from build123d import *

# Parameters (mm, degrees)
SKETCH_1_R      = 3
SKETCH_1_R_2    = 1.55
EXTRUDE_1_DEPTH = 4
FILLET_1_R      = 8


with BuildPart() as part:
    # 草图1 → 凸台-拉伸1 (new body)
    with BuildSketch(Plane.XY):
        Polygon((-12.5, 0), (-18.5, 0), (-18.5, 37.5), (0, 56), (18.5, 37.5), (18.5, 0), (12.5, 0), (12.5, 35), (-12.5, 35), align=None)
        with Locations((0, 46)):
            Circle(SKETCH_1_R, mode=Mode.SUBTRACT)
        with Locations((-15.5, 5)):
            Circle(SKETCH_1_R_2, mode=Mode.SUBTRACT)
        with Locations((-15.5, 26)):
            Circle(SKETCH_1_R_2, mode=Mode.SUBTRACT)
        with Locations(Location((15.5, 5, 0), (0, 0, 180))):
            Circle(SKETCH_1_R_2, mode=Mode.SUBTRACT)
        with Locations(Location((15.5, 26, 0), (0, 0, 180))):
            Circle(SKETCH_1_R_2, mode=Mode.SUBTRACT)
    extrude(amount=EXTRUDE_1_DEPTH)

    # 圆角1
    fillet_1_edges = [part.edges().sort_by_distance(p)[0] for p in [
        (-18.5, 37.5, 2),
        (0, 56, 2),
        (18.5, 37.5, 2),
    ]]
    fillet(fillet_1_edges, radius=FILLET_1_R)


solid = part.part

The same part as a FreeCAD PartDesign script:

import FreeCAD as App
import Part
import Sketcher
Q = App.Units.Quantity


def edges_at(feature, points):
    """Names of the edges that pass closest to the given points."""
    edges = feature.Shape.Edges
    near = lambda p: min(range(len(edges)), key=lambda i: edges[i].distToShape(Part.Vertex(*p))[0])
    return sorted({f"Edge{near(p) + 1}" for p in points})


def add_polygon(sketch, points):
    """Adds a closed chain of lines whose ends are joined by coincident constraints."""
    first, n = sketch.GeometryCount, len(points)
    for a, b in zip(points, points[1:] + points[:1]):
        sketch.addGeometry(Part.LineSegment(App.Vector(*a, 0), App.Vector(*b, 0)), False)
    for i in range(n):
        sketch.addConstraint(Sketcher.Constraint("Coincident", first + i, 2, first + (i + 1) % n, 1))

doc = App.newDocument("Part")
body = doc.addObject("PartDesign::Body", "Body")

# Sketch on XY plane
sketch1 = doc.addObject("Sketcher::SketchObject", "Sketch")
body.addObject(sketch1)
sketch1.AttachmentSupport = (doc.XY_Plane, [""])
sketch1.MapMode = "FlatFace"
add_polygon(sketch1, [(-18.5, 0), (-12.5, 0), (-12.5, 35), (12.5, 35), (12.5, 0), (18.5, 0), (18.5, 37.5), (0, 56), (-18.5, 37.5)])  # lines 0-8
sketch1.addGeometry(Part.Circle(App.Vector(15.5, 5, 0), App.Vector(0, 0, 1), 1.55), False)  # 9
sketch1.addGeometry(Part.Circle(App.Vector(15.5, 26, 0), App.Vector(0, 0, 1), 1.55), False)  # 10
sketch1.addGeometry(Part.Circle(App.Vector(-15.5, 5, 0), App.Vector(0, 0, 1), 1.55), False)  # 11
sketch1.addGeometry(Part.Circle(App.Vector(-15.5, 26, 0), App.Vector(0, 0, 1), 1.55), False)  # 12
sketch1.addGeometry(Part.Circle(App.Vector(0, 46, 0), App.Vector(0, 0, 1), 3), False)  # 13
sketch1.addConstraint([
    Sketcher.Constraint("Horizontal", 0),
    Sketcher.Constraint("Vertical", 1),
    Sketcher.Constraint("Horizontal", 2),
    Sketcher.Constraint("Vertical", 3),
    Sketcher.Constraint("Horizontal", 4),
    Sketcher.Constraint("Vertical", 5),
    Sketcher.Constraint("Vertical", 8),
    Sketcher.Constraint("Equal", 9, 10),
    Sketcher.Constraint("Equal", 10, 11),
    Sketcher.Constraint("Equal", 11, 12),
    Sketcher.Constraint("Symmetric", 0, 2, 3, 2, -1, 1),
    Sketcher.Constraint("Symmetric", 9, 3, 11, 3, -2),
    Sketcher.Constraint("Symmetric", 10, 3, 12, 3, -2),
    Sketcher.Constraint("Symmetric", 5, 2, 7, 2, -2),
    Sketcher.Constraint("PointOnObject", 13, 3, -2),
    Sketcher.Constraint("PointOnObject", 0, 2, -1),
    Sketcher.Constraint("PointOnObject", 6, 2, -2),
    Sketcher.Constraint("Perpendicular", 6, 7),
    Sketcher.Constraint("Vertical", 9, 3, 10, 3),
    Sketcher.Constraint("Diameter", 13, Q("6 mm")),
    Sketcher.Constraint("Diameter", 9, Q("3.1 mm")),
    Sketcher.Constraint("DistanceX", 0, 1, 0, 2, Q("6 mm")),
    Sketcher.Constraint("DistanceX", 2, 1, 2, 2, Q("25 mm")),
    Sketcher.Constraint("DistanceY", 1, 1, 1, 2, Q("35 mm")),
    Sketcher.Constraint("DistanceY", 5, 1, 5, 2, Q("37.5 mm")),
    Sketcher.Constraint("DistanceY", -1, 1, 9, 3, Q("5 mm")),
    Sketcher.Constraint("DistanceY", -1, 1, 10, 3, Q("26 mm")),
    Sketcher.Constraint("DistanceY", -1, 1, 13, 3, Q("46 mm")),
    Sketcher.Constraint("DistanceX", 11, 3, 9, 3, Q("31 mm")),
])
pad1 = doc.addObject("PartDesign::Pad", "Pad")
body.addObject(pad1)
pad1.Profile = sketch1
pad1.Length = 4
doc.recompute()

fillet = doc.addObject("PartDesign::Fillet", "Fillet")
body.addObject(fillet)
fillet.Base = (pad1, edges_at(pad1, [(-18.5, 37.5, 2), (0, 56, 2), (18.5, 37.5, 2)]))
fillet.Radius = 8

doc.recompute()
